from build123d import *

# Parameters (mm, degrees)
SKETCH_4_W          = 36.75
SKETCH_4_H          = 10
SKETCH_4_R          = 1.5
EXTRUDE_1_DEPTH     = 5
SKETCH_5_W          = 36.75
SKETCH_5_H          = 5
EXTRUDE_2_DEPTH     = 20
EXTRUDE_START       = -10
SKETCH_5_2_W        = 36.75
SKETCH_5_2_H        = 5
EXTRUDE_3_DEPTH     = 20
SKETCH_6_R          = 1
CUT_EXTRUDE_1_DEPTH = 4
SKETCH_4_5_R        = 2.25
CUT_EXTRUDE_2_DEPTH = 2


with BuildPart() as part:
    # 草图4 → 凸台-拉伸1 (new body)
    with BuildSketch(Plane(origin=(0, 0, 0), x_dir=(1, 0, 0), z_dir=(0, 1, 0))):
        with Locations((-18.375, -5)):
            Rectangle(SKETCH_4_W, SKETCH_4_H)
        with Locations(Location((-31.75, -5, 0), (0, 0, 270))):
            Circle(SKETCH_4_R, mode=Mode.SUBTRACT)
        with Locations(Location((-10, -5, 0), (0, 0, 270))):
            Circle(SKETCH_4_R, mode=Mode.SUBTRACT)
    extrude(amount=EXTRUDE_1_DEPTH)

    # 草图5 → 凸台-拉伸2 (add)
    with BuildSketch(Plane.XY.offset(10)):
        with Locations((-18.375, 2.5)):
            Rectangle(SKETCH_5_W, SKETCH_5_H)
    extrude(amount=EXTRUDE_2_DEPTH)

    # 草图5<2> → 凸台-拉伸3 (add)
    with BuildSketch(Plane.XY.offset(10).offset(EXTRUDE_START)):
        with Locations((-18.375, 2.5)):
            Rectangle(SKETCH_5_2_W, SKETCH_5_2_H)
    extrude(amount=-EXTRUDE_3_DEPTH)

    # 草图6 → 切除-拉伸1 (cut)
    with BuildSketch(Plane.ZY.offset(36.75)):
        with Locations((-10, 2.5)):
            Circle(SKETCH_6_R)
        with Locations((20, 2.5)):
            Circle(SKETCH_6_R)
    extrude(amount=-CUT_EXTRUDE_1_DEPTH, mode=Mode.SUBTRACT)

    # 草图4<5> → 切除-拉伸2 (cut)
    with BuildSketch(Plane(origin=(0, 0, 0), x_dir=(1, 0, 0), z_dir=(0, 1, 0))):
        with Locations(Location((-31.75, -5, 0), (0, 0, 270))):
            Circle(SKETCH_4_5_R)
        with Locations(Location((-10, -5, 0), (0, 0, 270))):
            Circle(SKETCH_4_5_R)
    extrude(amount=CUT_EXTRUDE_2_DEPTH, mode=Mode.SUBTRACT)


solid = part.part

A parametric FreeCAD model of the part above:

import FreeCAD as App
import Part
import Sketcher
from FreeCAD import Vector

doc = App.newDocument("Part")
body = doc.addObject("PartDesign::Body", "Body")

# Sketch on XZ plane
sketch1 = body.newObject("Sketcher::SketchObject", "Sketch")
sketch1.AttachmentSupport = (doc.getObject("XZ_Plane"), [""])
sketch1.MapMode = "FlatFace"
sketch1.addGeometry([
    Part.LineSegment(Vector(-36.8, 0, 0), Vector(-36.8, 10, 0)),  # 0
    Part.LineSegment(Vector(-36.8, 10, 0), Vector(0, 10, 0)),  # 1
    Part.LineSegment(Vector(0, 10, 0), Vector(0, 0, 0)),  # 2
    Part.LineSegment(Vector(0, 0, 0), Vector(-36.8, 0, 0)),  # 3
    Part.Circle(Vector(-31.8, 5, 0), Vector(0, 0, 1), 1.5),  # 4
    Part.Circle(Vector(-10, 5, 0), Vector(0, 0, 1), 1.5),  # 5
], False)
sketch1.addConstraint([
    Sketcher.Constraint("Coincident", 0, 2, 1, 1),
    Sketcher.Constraint("Coincident", 1, 2, 2, 1),
    Sketcher.Constraint("Coincident", 2, 2, 3, 1),
    Sketcher.Constraint("Coincident", 3, 2, 0, 1),
    Sketcher.Constraint("Vertical", 0),
    Sketcher.Constraint("Horizontal", 1),
    Sketcher.Constraint("Vertical", 2),
    Sketcher.Constraint("Horizontal", 3),
    Sketcher.Constraint("Coincident", 2, 2, -1, 1),
    Sketcher.Constraint("Equal", 4, 5),
    Sketcher.Constraint("Horizontal", 4, 3, 5, 3),
    Sketcher.Constraint("Diameter", 4, 3.0),
    Sketcher.Constraint("DistanceY", 0, 1, 0, 2, 10.0),
    Sketcher.Constraint("DistanceY", -1, 1, 4, 3, 5.0),
    Sketcher.Constraint("DistanceX", 5, 3, -1, 1, 10.0),
    Sketcher.Constraint("DistanceX", 0, 2, 4, 3, 5.0),
    Sketcher.Constraint("DistanceX", 1, 1, 1, 2, 36.75),
])
pad1 = body.newObject("PartDesign::Pad", "Pad")
pad1.Profile = sketch1
pad1.Length = 5
pad1.Reversed = True

# Sketch on XY plane
sketch2 = body.newObject("Sketcher::SketchObject", "Sketch001")
sketch2.AttachmentSupport = (doc.getObject("XY_Plane"), [""])
sketch2.MapMode = "FlatFace"
sketch2.AttachmentOffset = App.Placement(Vector(0, 0, 10), App.Rotation())
sketch2.addGeometry([
    Part.LineSegment(Vector(-37, 5, 0), Vector(-37, 0, 0)),
    Part.LineSegment(Vector(-37, 0, 0), Vector(0, 0, 0)),
    Part.LineSegment(Vector(0, 0, 0), Vector(0, 5, 0)),
    Part.LineSegment(Vector(0, 5, 0), Vector(-37, 5, 0)),
], False)
sketch2.addConstraint([
    Sketcher.Constraint("Coincident", 0, 2, 1, 1),
    Sketcher.Constraint("Coincident", 1, 2, 2, 1),
    Sketcher.Constraint("Coincident", 2, 2, 3, 1),
    Sketcher.Constraint("Coincident", 3, 2, 0, 1),
    Sketcher.Constraint("Vertical", 0),
    Sketcher.Constraint("Horizontal", 1),
    Sketcher.Constraint("Vertical", 2),
    Sketcher.Constraint("Horizontal", 3),
    Sketcher.Constraint("Coincident", 1, 2, -1, 1),
    Sketcher.Constraint("DistanceY", 0, 2, 0, 1, 5.0),
    Sketcher.Constraint("DistanceX", 1, 1, 1, 2, 36.75),
])
pad2 = body.newObject("PartDesign::Pad", "Pad001")
pad2.Profile = sketch2
pad2.Length = 20

# Sketch on XY plane
sketch3 = body.newObject("Sketcher::SketchObject", "Sketch002")
sketch3.AttachmentSupport = (doc.getObject("XY_Plane"), [""])
sketch3.MapMode = "FlatFace"
sketch3.addGeometry([
    Part.LineSegment(Vector(-37, 5, 0), Vector(-37, 0, 0)),
    Part.LineSegment(Vector(-37, 0, 0), Vector(0, 0, 0)),
    Part.LineSegment(Vector(0, 0, 0), Vector(0, 5, 0)),
    Part.LineSegment(Vector(0, 5, 0), Vector(-37, 5, 0)),
], False)
sketch3.addConstraint([
    Sketcher.Constraint("Coincident", 0, 2, 1, 1),
    Sketcher.Constraint("Coincident", 1, 2, 2, 1),
    Sketcher.Constraint("Coincident", 2, 2, 3, 1),
    Sketcher.Constraint("Coincident", 3, 2, 0, 1),
    Sketcher.Constraint("Vertical", 0),
    Sketcher.Constraint("Horizontal", 1),
    Sketcher.Constraint("Vertical", 2),
    Sketcher.Constraint("Horizontal", 3),
    Sketcher.Constraint("Coincident", 1, 2, -1, 1),
    Sketcher.Constraint("DistanceY", 0, 2, 0, 1, 5.0),
    Sketcher.Constraint("DistanceX", 1, 1, 1, 2, 36.75),
])
pad3 = body.newObject("PartDesign::Pad", "Pad002")
pad3.Profile = sketch3
pad3.Length = 20
pad3.Reversed = True

# Sketch on YZ plane
sketch4 = body.newObject("Sketcher::SketchObject", "Sketch003")
sketch4.AttachmentSupport = (doc.getObject("YZ_Plane"), [""])
sketch4.MapMode = "FlatFace"
sketch4.AttachmentOffset = App.Placement(Vector(0, 0, -36.75), App.Rotation())
sketch4.addGeometry([
    Part.Circle(Vector(2.5, -10, 0), Vector(0, 0, 1), 1),
    Part.Circle(Vector(2.5, 20, 0), Vector(0, 0, 1), 1),
], False)
sketch4.addConstraint([
    Sketcher.Constraint("Equal", 0, 1),
    Sketcher.Constraint("Vertical", 0, 3, 1, 3),
    Sketcher.Constraint("Diameter", 0, 2.0),
    Sketcher.Constraint("DistanceY", 0, 3, -1, 1, 10.0),
    Sketcher.Constraint("DistanceY", -1, 1, 1, 3, 20.0),
    Sketcher.Constraint("DistanceX", -1, 1, 0, 3, 2.5),
])
pocket1 = body.newObject("PartDesign::Pocket", "Pocket")
pocket1.Profile = sketch4
pocket1.Length = 4
pocket1.Reversed = True

# Sketch on XZ plane
sketch5 = body.newObject("Sketcher::SketchObject", "Sketch004")
sketch5.AttachmentSupport = (doc.getObject("XZ_Plane"), [""])
sketch5.MapMode = "FlatFace"
sketch5.addGeometry([
    Part.Circle(Vector(-31.8, 5, 0), Vector(0, 0, 1), 2.2),
    Part.Circle(Vector(-10, 5, 0), Vector(0, 0, 1), 2.2),
], False)
sketch5.addConstraint([
    Sketcher.Constraint("Equal", 0, 1),
    Sketcher.Constraint("Horizontal", 0, 3, 1, 3),
    Sketcher.Constraint("Diameter", 0, 4.5),
    Sketcher.Constraint("DistanceY", -1, 1, 0, 3, 5.0),
    Sketcher.Constraint("DistanceX", 1, 3, -1, 1, 10.0),
    Sketcher.Constraint("DistanceX", 0, 3, -1, 1, 31.75),
])
pocket2 = body.newObject("PartDesign::Pocket", "Pocket001")
pocket2.Profile = sketch5
pocket2.Length = 2

doc.recompute()
